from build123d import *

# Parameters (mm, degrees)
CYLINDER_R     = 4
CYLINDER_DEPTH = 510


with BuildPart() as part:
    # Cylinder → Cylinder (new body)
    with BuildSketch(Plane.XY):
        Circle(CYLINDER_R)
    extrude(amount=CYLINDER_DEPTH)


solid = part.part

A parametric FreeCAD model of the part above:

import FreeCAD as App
import Part
import Sketcher

V = App.Vector

doc = App.newDocument("Part")
params = doc.addObject("Spreadsheet::Sheet", "Params")
for row, (alias, value) in enumerate([
    ("sketch1_diameter", "8 mm"),
    ("pad1_length", "510 mm"),
], start=1):
    params.set(f"A{row}", alias)
    params.set(f"B{row}", "=" + value)
    params.setAlias(f"B{row}", alias)

body = doc.addObject("PartDesign::Body", "Body")

sketch1 = doc.addObject("Sketcher::SketchObject", "Sketch")
body.addObject(sketch1)
sketch1.AttachmentSupport = (doc.XY_Plane, [""])
sketch1.MapMode = "FlatFace"
sketch1.addGeometry(Part.Circle(V(0, 0, 0), V(0, 0, 1), 4), False)
sketch1.addConstraint([
    Sketcher.Constraint("Coincident", 0, 3, -1, 1),
    Sketcher.Constraint("Diameter", 0, 8.0),
])
sketch1.setExpression("Constraints[1]", "Params.sketch1_diameter")
pad1 = doc.addObject("PartDesign::Pad", "Pad")
body.addObject(pad1)
pad1.Profile = sketch1
pad1.setExpression("Length", "Params.pad1_length")

doc.recompute()
